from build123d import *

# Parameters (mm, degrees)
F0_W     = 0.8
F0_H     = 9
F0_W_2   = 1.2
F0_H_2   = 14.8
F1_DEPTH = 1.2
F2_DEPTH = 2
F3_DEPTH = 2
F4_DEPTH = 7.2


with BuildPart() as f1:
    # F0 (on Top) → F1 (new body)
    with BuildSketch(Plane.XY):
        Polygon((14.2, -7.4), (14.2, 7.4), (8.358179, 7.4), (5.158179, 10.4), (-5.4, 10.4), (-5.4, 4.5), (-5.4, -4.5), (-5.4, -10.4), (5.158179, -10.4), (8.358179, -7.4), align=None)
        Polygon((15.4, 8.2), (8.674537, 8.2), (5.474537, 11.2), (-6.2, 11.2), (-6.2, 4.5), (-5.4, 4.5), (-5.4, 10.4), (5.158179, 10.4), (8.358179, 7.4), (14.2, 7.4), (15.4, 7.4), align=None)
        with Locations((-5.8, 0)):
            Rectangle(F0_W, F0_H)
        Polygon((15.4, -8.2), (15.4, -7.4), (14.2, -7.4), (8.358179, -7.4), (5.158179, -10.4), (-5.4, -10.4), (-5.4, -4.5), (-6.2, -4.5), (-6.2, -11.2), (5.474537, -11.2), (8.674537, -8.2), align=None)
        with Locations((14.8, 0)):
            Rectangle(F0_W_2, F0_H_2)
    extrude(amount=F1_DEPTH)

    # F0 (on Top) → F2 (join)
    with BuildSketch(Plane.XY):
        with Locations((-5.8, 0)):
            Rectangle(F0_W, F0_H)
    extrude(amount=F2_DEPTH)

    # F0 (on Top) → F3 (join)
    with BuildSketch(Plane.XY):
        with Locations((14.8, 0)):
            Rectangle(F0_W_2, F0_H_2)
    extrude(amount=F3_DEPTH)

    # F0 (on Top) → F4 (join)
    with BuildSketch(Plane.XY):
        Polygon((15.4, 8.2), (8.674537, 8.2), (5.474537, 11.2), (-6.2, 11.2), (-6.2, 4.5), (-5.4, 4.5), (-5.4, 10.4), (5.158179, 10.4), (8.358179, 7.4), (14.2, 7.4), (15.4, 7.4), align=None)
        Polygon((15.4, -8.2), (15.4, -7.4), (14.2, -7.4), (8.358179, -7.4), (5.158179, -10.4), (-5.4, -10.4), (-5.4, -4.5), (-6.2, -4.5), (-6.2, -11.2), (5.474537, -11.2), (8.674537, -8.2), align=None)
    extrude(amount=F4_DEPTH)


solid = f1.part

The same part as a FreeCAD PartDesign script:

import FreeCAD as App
import Part
import Sketcher
from FreeCAD import Vector

doc = App.newDocument("Part")
body = doc.addObject("PartDesign::Body", "Body")

sketch1 = body.newObject("Sketcher::SketchObject", "Sketch")
sketch1.AttachmentSupport = (doc.getObject("XY_Plane"), [""])
sketch1.MapMode = "FlatFace"
sketch1.addGeometry(Part.LineSegment(Vector(15.4, 8.2, 0), Vector(8.7, 8.2, 0)), False)
sketch1.addGeometry(Part.LineSegment(Vector(8.7, 8.2, 0), Vector(5.5, 11.2, 0)), False)
sketch1.addGeometry(Part.LineSegment(Vector(5.5, 11.2, 0), Vector(-6.2, 11.2, 0)), False)
sketch1.addGeometry(Part.LineSegment(Vector(-6.2, 11.2, 0), Vector(-6.2, -11.2, 0)), False)
sketch1.addGeometry(Part.LineSegment(Vector(-6.2, -11.2, 0), Vector(5.5, -11.2, 0)), False)
sketch1.addGeometry(Part.LineSegment(Vector(5.5, -11.2, 0), Vector(8.7, -8.2, 0)), False)
sketch1.addGeometry(Part.LineSegment(Vector(8.7, -8.2, 0), Vector(15.4, -8.2, 0)), False)
sketch1.addGeometry(Part.LineSegment(Vector(15.4, -8.2, 0), Vector(15.4, 8.2, 0)), False)
sketch1.addConstraint(Sketcher.Constraint("Coincident", 0, 2, 1, 1))
sketch1.addConstraint(Sketcher.Constraint("Coincident", 1, 2, 2, 1))
sketch1.addConstraint(Sketcher.Constraint("Coincident", 2, 2, 3, 1))
sketch1.addConstraint(Sketcher.Constraint("Coincident", 3, 2, 4, 1))
sketch1.addConstraint(Sketcher.Constraint("Coincident", 4, 2, 5, 1))
sketch1.addConstraint(Sketcher.Constraint("Coincident", 5, 2, 6, 1))
sketch1.addConstraint(Sketcher.Constraint("Coincident", 6, 2, 7, 1))
sketch1.addConstraint(Sketcher.Constraint("Coincident", 7, 2, 0, 1))
sketch1.addConstraint(Sketcher.Constraint("Horizontal", 0))
sketch1.addConstraint(Sketcher.Constraint("Horizontal", 2))
sketch1.addConstraint(Sketcher.Constraint("Vertical", 3))
sketch1.addConstraint(Sketcher.Constraint("Horizontal", 4))
sketch1.addConstraint(Sketcher.Constraint("Horizontal", 6))
sketch1.addConstraint(Sketcher.Constraint("Vertical", 7))
sketch1.addConstraint(Sketcher.Constraint("Symmetric", 1, 2, 4, 2, -1))
sketch1.addConstraint(Sketcher.Constraint("Symmetric", 0, 2, 5, 2, -1))
sketch1.addConstraint(Sketcher.Constraint("DistanceY", 3, 2, 3, 1, 22.4))
sketch1.addConstraint(Sketcher.Constraint("DistanceY", 7, 1, 7, 2, 16.4))
sketch1.addConstraint(Sketcher.Constraint("DistanceX", 2, 2, -1, 1, 6.2))
sketch1.addConstraint(Sketcher.Constraint("DistanceX", -1, 1, 6, 2, 15.4))
sketch1.addConstraint(Sketcher.Constraint("DistanceX", 1, 2, 0, 2, 3.2))
sketch1.addConstraint(Sketcher.Constraint("DistanceX", 0, 2, 0, 1, 6.725463))
pad1 = body.newObject("PartDesign::Pad", "Pad")
pad1.Profile = sketch1
pad1.Length = 1.2

sketch2 = body.newObject("Sketcher::SketchObject", "Sketch001")
sketch2.AttachmentSupport = (doc.getObject("XY_Plane"), [""])
sketch2.MapMode = "FlatFace"
sketch2.addGeometry(Part.LineSegment(Vector(-6.2, 4.5, 0), Vector(-6.2, -4.5, 0)), False)
sketch2.addGeometry(Part.LineSegment(Vector(-6.2, -4.5, 0), Vector(-5.4, -4.5, 0)), False)
sketch2.addGeometry(Part.LineSegment(Vector(-5.4, -4.5, 0), Vector(-5.4, 4.5, 0)), False)
sketch2.addGeometry(Part.LineSegment(Vector(-5.4, 4.5, 0), Vector(-6.2, 4.5, 0)), False)
sketch2.addConstraint(Sketcher.Constraint("Coincident", 0, 2, 1, 1))
sketch2.addConstraint(Sketcher.Constraint("Coincident", 1, 2, 2, 1))
sketch2.addConstraint(Sketcher.Constraint("Coincident", 2, 2, 3, 1))
sketch2.addConstraint(Sketcher.Constraint("Coincident", 3, 2, 0, 1))
sketch2.addConstraint(Sketcher.Constraint("Vertical", 0))
sketch2.addConstraint(Sketcher.Constraint("Horizontal", 1))
sketch2.addConstraint(Sketcher.Constraint("Vertical", 2))
sketch2.addConstraint(Sketcher.Constraint("Horizontal", 3))
sketch2.addConstraint(Sketcher.Constraint("DistanceY", 0, 2, 0, 1, 9.0))
sketch2.addConstraint(Sketcher.Constraint("DistanceX", 1, 1, 1, 2, 0.8))
sketch2.addConstraint(Sketcher.Constraint("DistanceX", 0, 2, -1, 1, 6.2))
sketch2.addConstraint(Sketcher.Constraint("DistanceY", 0, 2, -1, 1, 4.5))
pad2 = body.newObject("PartDesign::Pad", "Pad001")
pad2.Profile = sketch2
pad2.Length = 2

sketch3 = body.newObject("Sketcher::SketchObject", "Sketch002")
sketch3.AttachmentSupport = (doc.getObject("XY_Plane"), [""])
sketch3.MapMode = "FlatFace"
sketch3.addGeometry(Part.LineSegment(Vector(14.2, 7.4, 0), Vector(14.2, -7.4, 0)), False)
sketch3.addGeometry(Part.LineSegment(Vector(14.2, -7.4, 0), Vector(15.4, -7.4, 0)), False)
sketch3.addGeometry(Part.LineSegment(Vector(15.4, -7.4, 0), Vector(15.4, 7.4, 0)), False)
sketch3.addGeometry(Part.LineSegment(Vector(15.4, 7.4, 0), Vector(14.2, 7.4, 0)), False)
sketch3.addConstraint(Sketcher.Constraint("Coincident", 0, 2, 1, 1))
sketch3.addConstraint(Sketcher.Constraint("Coincident", 1, 2, 2, 1))
sketch3.addConstraint(Sketcher.Constraint("Coincident", 2, 2, 3, 1))
sketch3.addConstraint(Sketcher.Constraint("Coincident", 3, 2, 0, 1))
sketch3.addConstraint(Sketcher.Constraint("Vertical", 0))
sketch3.addConstraint(Sketcher.Constraint("Horizontal", 1))
sketch3.addConstraint(Sketcher.Constraint("Vertical", 2))
sketch3.addConstraint(Sketcher.Constraint("Horizontal", 3))
sketch3.addConstraint(Sketcher.Constraint("DistanceX", 1, 1, 1, 2, 1.2))
sketch3.addConstraint(Sketcher.Constraint("DistanceY", 0, 2, 0, 1, 14.8))
sketch3.addConstraint(Sketcher.Constraint("DistanceX", -1, 1, 0, 2, 14.2))
sketch3.addConstraint(Sketcher.Constraint("DistanceY", 0, 2, -1, 1, 7.4))
pad3 = body.newObject("PartDesign::Pad", "Pad002")
pad3.Profile = sketch3
pad3.Length = 2

sketch4 = body.newObject("Sketcher::SketchObject", "Sketch003")
sketch4.AttachmentSupport = (doc.getObject("XY_Plane"), [""])
sketch4.MapMode = "FlatFace"
sketch4.addGeometry(Part.LineSegment(Vector(15.4, 8.2, 0), Vector(8.7, 8.2, 0)), False)
sketch4.addGeometry(Part.LineSegment(Vector(8.7, 8.2, 0), Vector(5.5, 11.2, 0)), False)
sketch4.addGeometry(Part.LineSegment(Vector(5.5, 11.2, 0), Vector(-6.2, 11.2, 0)), False)
sketch4.addGeometry(Part.LineSegment(Vector(-6.2, 11.2, 0), Vector(-6.2, 4.5, 0)), False)
sketch4.addGeometry(Part.LineSegment(Vector(-6.2, 4.5, 0), Vector(-5.4, 4.5, 0)), False)
sketch4.addGeometry(Part.LineSegment(Vector(-5.4, 4.5, 0), Vector(-5.4, 10.4, 0)), False)
sketch4.addGeometry(Part.LineSegment(Vector(-5.4, 10.4, 0), Vector(5.2, 10.4, 0)), False)
sketch4.addGeometry(Part.LineSegment(Vector(5.2, 10.4, 0), Vector(8.4, 7.4, 0)), False)
sketch4.addGeometry(Part.LineSegment(Vector(8.4, 7.4, 0), Vector(15.4, 7.4, 0)), False)
sketch4.addGeometry(Part.LineSegment(Vector(15.4, 7.4, 0), Vector(15.4, 8.2, 0)), False)
sketch4.addGeometry(Part.LineSegment(Vector(15.4, -8.2, 0), Vector(15.4, -7.4, 0)), False)
sketch4.addGeometry(Part.LineSegment(Vector(15.4, -7.4, 0), Vector(8.4, -7.4, 0)), False)
sketch4.addGeometry(Part.LineSegment(Vector(8.4, -7.4, 0), Vector(5.2, -10.4, 0)), False)
sketch4.addGeometry(Part.LineSegment(Vector(5.2, -10.4, 0), Vector(-5.4, -10.4, 0)), False)
sketch4.addGeometry(Part.LineSegment(Vector(-5.4, -10.4, 0), Vector(-5.4, -4.5, 0)), False)
sketch4.addGeometry(Part.LineSegment(Vector(-5.4, -4.5, 0), Vector(-6.2, -4.5, 0)), False)
sketch4.addGeometry(Part.LineSegment(Vector(-6.2, -4.5, 0), Vector(-6.2, -11.2, 0)), False)
sketch4.addGeometry(Part.LineSegment(Vector(-6.2, -11.2, 0), Vector(5.5, -11.2, 0)), False)
sketch4.addGeometry(Part.LineSegment(Vector(5.5, -11.2, 0), Vector(8.7, -8.2, 0)), False)
sketch4.addGeometry(Part.LineSegment(Vector(8.7, -8.2, 0), Vector(15.4, -8.2, 0)), False)
sketch4.addConstraint(Sketcher.Constraint("Coincident", 0, 2, 1, 1))
sketch4.addConstraint(Sketcher.Constraint("Coincident", 1, 2, 2, 1))
sketch4.addConstraint(Sketcher.Constraint("Coincident", 2, 2, 3, 1))
sketch4.addConstraint(Sketcher.Constraint("Coincident", 3, 2, 4, 1))
sketch4.addConstraint(Sketcher.Constraint("Coincident", 4, 2, 5, 1))
sketch4.addConstraint(Sketcher.Constraint("Coincident", 5, 2, 6, 1))
sketch4.addConstraint(Sketcher.Constraint("Coincident", 6, 2, 7, 1))
sketch4.addConstraint(Sketcher.Constraint("Coincident", 7, 2, 8, 1))
sketch4.addConstraint(Sketcher.Constraint("Coincident", 8, 2, 9, 1))
sketch4.addConstraint(Sketcher.Constraint("Coincident", 9, 2, 0, 1))
sketch4.addConstraint(Sketcher.Constraint("Coincident", 10, 2, 11, 1))
sketch4.addConstraint(Sketcher.Constraint("Coincident", 11, 2, 12, 1))
sketch4.addConstraint(Sketcher.Constraint("Coincident", 12, 2, 13, 1))
sketch4.addConstraint(Sketcher.Constraint("Coincident", 13, 2, 14, 1))
sketch4.addConstraint(Sketcher.Constraint("Coincident", 14, 2, 15, 1))
sketch4.addConstraint(Sketcher.Constraint("Coincident", 15, 2, 16, 1))
sketch4.addConstraint(Sketcher.Constraint("Coincident", 16, 2, 17, 1))
sketch4.addConstraint(Sketcher.Constraint("Coincident", 17, 2, 18, 1))
sketch4.addConstraint(Sketcher.Constraint("Coincident", 18, 2, 19, 1))
sketch4.addConstraint(Sketcher.Constraint("Coincident", 19, 2, 10, 1))
sketch4.addConstraint(Sketcher.Constraint("Horizontal", 0))
sketch4.addConstraint(Sketcher.Constraint("Horizontal", 2))
sketch4.addConstraint(Sketcher.Constraint("Vertical", 3))
sketch4.addConstraint(Sketcher.Constraint("Horizontal", 4))
sketch4.addConstraint(Sketcher.Constraint("Vertical", 5))
sketch4.addConstraint(Sketcher.Constraint("Horizontal", 6))
sketch4.addConstraint(Sketcher.Constraint("Horizontal", 8))
sketch4.addConstraint(Sketcher.Constraint("Vertical", 9))
sketch4.addConstraint(Sketcher.Constraint("Vertical", 10))
sketch4.addConstraint(Sketcher.Constraint("Horizontal", 11))
sketch4.addConstraint(Sketcher.Constraint("Horizontal", 13))
sketch4.addConstraint(Sketcher.Constraint("Vertical", 14))
sketch4.addConstraint(Sketcher.Constraint("Horizontal", 15))
sketch4.addConstraint(Sketcher.Constraint("Vertical", 16))
sketch4.addConstraint(Sketcher.Constraint("Horizontal", 17))
sketch4.addConstraint(Sketcher.Constraint("Horizontal", 19))
sketch4.addConstraint(Sketcher.Constraint("Symmetric", 8, 2, 10, 2, -1))
sketch4.addConstraint(Sketcher.Constraint("Symmetric", 6, 2, 12, 2, -1))
sketch4.addConstraint(Sketcher.Constraint("Symmetric", 4, 2, 14, 2, -1))
sketch4.addConstraint(Sketcher.Constraint("Symmetric", 2, 2, 16, 2, -1))
sketch4.addConstraint(Sketcher.Constraint("Symmetric", 0, 2, 18, 2, -1))
sketch4.addConstraint(Sketcher.Constraint("Parallel", 1, 7))
sketch4.addConstraint(Sketcher.Constraint("Parallel", 12, 18))
sketch4.addConstraint(Sketcher.Constraint("Vertical", 7, 2, 11, 2))
sketch4.addConstraint(Sketcher.Constraint("Equal", 15, 9))
sketch4.addConstraint(Sketcher.Constraint("Equal", 1, 7))
sketch4.addConstraint(Sketcher.Constraint("DistanceX", 4, 1, 4, 2, 0.8))
sketch4.addConstraint(Sketcher.Constraint("DistanceY", 3, 2, 3, 1, 6.7))
sketch4.addConstraint(Sketcher.Constraint("DistanceY", 0, 2, 1, 2, 3.0))
sketch4.addConstraint(Sketcher.Constraint("DistanceY", 14, 2, 4, 2, 9.0))
sketch4.addConstraint(Sketcher.Constraint("DistanceX", 2, 2, -1, 1, 6.2))
sketch4.addConstraint(Sketcher.Constraint("DistanceX", -1, 1, 8, 2, 15.4))
sketch4.addConstraint(Sketcher.Constraint("DistanceX", 1, 2, 0, 2, 3.2))
sketch4.addConstraint(Sketcher.Constraint("DistanceX", 6, 1, 6, 2, 10.558179))
sketch4.addConstraint(Sketcher.Constraint("DistanceX", 0, 2, 0, 1, 6.725463))
pad4 = body.newObject("PartDesign::Pad", "Pad003")
pad4.Profile = sketch4
pad4.Length = 7.2

doc.recompute()
